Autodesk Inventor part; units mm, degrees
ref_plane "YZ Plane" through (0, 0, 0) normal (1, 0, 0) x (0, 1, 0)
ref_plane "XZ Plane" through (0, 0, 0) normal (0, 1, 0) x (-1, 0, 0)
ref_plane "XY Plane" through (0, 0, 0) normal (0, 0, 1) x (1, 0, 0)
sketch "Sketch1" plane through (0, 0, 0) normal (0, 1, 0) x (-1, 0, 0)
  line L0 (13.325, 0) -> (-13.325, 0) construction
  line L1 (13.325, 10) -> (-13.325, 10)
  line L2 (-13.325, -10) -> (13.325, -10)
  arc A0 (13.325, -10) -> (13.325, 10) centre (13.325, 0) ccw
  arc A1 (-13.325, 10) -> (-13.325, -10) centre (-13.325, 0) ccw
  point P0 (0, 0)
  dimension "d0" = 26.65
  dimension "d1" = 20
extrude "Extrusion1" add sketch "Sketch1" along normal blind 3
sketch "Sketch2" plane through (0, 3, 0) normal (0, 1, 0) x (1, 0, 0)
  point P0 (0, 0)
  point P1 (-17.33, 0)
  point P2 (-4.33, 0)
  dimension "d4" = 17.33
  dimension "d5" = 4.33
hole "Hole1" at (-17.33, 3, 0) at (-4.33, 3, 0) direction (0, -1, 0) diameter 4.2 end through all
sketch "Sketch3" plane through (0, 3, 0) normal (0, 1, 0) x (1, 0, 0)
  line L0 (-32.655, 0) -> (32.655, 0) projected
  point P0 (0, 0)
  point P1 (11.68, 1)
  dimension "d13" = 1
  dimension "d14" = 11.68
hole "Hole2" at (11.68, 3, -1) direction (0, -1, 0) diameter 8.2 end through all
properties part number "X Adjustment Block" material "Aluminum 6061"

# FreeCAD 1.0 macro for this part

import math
import FreeCAD as App
import Part
import Sketcher

doc = App.newDocument("Part")
body = doc.addObject("PartDesign::Body", "Body")

# Sketch on XZ plane
sketch1 = doc.addObject("Sketcher::SketchObject", "Sketch")
body.addObject(sketch1)
sketch1.AttachmentSupport = (doc.XZ_Plane, [""])
sketch1.MapMode = "FlatFace"
sketch1.addGeometry([
    Part.ArcOfCircle(Part.Circle(App.Vector(-13, 0, 0), App.Vector(0, 0, 1), 10), math.radians(90), math.radians(270)),
    Part.LineSegment(App.Vector(-13, 10, 0), App.Vector(13, 10, 0)),
    Part.ArcOfCircle(Part.Circle(App.Vector(13, 0, 0), App.Vector(0, 0, 1), 10), math.radians(-90), math.radians(90)),
    Part.LineSegment(App.Vector(13, -10, 0), App.Vector(-13, -10, 0)),
], False)
sketch1.addConstraint([
    Sketcher.Constraint("Tangent", 0, 1, 1, 1),
    Sketcher.Constraint("Tangent", 1, 2, 2, 2),
    Sketcher.Constraint("Tangent", 2, 1, 3, 1),
    Sketcher.Constraint("Tangent", 3, 2, 0, 2),
    Sketcher.Constraint("Horizontal", 1),
    Sketcher.Constraint("Horizontal", 3),
    Sketcher.Constraint("Symmetric", 0, 3, 2, 3, -1, 1),
    Sketcher.Constraint("Radius", 0, 10.0),
    Sketcher.Constraint("DistanceX", 1, 1, 1, 2, 26.65),
])
pad1 = doc.addObject("PartDesign::Pad", "Pad")
body.addObject(pad1)
pad1.Profile = sketch1
pad1.Length = 3
pad1.Reversed = True

# Sketch on XZ plane
sketch2 = doc.addObject("Sketcher::SketchObject", "Sketch001")
body.addObject(sketch2)
sketch2.AttachmentSupport = (doc.XZ_Plane, [""])
sketch2.MapMode = "FlatFace"
sketch2.AttachmentOffset = App.Placement(App.Vector(0, 0, -3), App.Rotation())
sketch2.addGeometry([
    Part.Circle(App.Vector(-17.3, 0, 0), App.Vector(0, 0, 1), 2.1),
    Part.Circle(App.Vector(-4.3, 0, 0), App.Vector(0, 0, 1), 2.1),
], False)
sketch2.addConstraint([
    Sketcher.Constraint("Equal", 0, 1),
    Sketcher.Constraint("PointOnObject", 0, 3, -1),
    Sketcher.Constraint("PointOnObject", 1, 3, -1),
    Sketcher.Constraint("Diameter", 0, 4.2),
    Sketcher.Constraint("DistanceX", 0, 3, 1, 3, 13.0),
    Sketcher.Constraint("DistanceX", 0, 3, -1, 1, 17.33),
])
doc.recompute()
hole = doc.addObject("PartDesign::Hole", "Hole")
body.addObject(hole)
hole.Profile = sketch2
hole.ThreadType = "None"
hole.Diameter = 4.2
hole.DepthType = "ThroughAll"
hole.Reversed = True

# Sketch on XZ plane
sketch3 = doc.addObject("Sketcher::SketchObject", "Sketch002")
body.addObject(sketch3)
sketch3.AttachmentSupport = (doc.XZ_Plane, [""])
sketch3.MapMode = "FlatFace"
sketch3.AttachmentOffset = App.Placement(App.Vector(0, 0, -3), App.Rotation())
sketch3.addGeometry(Part.Circle(App.Vector(11.7, -1, 0), App.Vector(0, 0, 1), 4.1), False)
sketch3.addConstraint([
    Sketcher.Constraint("Diameter", 0, 8.2),
    Sketcher.Constraint("DistanceY", 0, 3, -1, 1, 1.0),
    Sketcher.Constraint("DistanceX", -1, 1, 0, 3, 11.68),
])
doc.recompute()
hole2 = doc.addObject("PartDesign::Hole", "Hole001")
body.addObject(hole2)
hole2.Profile = sketch3
hole2.ThreadType = "None"
hole2.Diameter = 8.2
hole2.DepthType = "ThroughAll"
hole2.Reversed = True

doc.recompute()
